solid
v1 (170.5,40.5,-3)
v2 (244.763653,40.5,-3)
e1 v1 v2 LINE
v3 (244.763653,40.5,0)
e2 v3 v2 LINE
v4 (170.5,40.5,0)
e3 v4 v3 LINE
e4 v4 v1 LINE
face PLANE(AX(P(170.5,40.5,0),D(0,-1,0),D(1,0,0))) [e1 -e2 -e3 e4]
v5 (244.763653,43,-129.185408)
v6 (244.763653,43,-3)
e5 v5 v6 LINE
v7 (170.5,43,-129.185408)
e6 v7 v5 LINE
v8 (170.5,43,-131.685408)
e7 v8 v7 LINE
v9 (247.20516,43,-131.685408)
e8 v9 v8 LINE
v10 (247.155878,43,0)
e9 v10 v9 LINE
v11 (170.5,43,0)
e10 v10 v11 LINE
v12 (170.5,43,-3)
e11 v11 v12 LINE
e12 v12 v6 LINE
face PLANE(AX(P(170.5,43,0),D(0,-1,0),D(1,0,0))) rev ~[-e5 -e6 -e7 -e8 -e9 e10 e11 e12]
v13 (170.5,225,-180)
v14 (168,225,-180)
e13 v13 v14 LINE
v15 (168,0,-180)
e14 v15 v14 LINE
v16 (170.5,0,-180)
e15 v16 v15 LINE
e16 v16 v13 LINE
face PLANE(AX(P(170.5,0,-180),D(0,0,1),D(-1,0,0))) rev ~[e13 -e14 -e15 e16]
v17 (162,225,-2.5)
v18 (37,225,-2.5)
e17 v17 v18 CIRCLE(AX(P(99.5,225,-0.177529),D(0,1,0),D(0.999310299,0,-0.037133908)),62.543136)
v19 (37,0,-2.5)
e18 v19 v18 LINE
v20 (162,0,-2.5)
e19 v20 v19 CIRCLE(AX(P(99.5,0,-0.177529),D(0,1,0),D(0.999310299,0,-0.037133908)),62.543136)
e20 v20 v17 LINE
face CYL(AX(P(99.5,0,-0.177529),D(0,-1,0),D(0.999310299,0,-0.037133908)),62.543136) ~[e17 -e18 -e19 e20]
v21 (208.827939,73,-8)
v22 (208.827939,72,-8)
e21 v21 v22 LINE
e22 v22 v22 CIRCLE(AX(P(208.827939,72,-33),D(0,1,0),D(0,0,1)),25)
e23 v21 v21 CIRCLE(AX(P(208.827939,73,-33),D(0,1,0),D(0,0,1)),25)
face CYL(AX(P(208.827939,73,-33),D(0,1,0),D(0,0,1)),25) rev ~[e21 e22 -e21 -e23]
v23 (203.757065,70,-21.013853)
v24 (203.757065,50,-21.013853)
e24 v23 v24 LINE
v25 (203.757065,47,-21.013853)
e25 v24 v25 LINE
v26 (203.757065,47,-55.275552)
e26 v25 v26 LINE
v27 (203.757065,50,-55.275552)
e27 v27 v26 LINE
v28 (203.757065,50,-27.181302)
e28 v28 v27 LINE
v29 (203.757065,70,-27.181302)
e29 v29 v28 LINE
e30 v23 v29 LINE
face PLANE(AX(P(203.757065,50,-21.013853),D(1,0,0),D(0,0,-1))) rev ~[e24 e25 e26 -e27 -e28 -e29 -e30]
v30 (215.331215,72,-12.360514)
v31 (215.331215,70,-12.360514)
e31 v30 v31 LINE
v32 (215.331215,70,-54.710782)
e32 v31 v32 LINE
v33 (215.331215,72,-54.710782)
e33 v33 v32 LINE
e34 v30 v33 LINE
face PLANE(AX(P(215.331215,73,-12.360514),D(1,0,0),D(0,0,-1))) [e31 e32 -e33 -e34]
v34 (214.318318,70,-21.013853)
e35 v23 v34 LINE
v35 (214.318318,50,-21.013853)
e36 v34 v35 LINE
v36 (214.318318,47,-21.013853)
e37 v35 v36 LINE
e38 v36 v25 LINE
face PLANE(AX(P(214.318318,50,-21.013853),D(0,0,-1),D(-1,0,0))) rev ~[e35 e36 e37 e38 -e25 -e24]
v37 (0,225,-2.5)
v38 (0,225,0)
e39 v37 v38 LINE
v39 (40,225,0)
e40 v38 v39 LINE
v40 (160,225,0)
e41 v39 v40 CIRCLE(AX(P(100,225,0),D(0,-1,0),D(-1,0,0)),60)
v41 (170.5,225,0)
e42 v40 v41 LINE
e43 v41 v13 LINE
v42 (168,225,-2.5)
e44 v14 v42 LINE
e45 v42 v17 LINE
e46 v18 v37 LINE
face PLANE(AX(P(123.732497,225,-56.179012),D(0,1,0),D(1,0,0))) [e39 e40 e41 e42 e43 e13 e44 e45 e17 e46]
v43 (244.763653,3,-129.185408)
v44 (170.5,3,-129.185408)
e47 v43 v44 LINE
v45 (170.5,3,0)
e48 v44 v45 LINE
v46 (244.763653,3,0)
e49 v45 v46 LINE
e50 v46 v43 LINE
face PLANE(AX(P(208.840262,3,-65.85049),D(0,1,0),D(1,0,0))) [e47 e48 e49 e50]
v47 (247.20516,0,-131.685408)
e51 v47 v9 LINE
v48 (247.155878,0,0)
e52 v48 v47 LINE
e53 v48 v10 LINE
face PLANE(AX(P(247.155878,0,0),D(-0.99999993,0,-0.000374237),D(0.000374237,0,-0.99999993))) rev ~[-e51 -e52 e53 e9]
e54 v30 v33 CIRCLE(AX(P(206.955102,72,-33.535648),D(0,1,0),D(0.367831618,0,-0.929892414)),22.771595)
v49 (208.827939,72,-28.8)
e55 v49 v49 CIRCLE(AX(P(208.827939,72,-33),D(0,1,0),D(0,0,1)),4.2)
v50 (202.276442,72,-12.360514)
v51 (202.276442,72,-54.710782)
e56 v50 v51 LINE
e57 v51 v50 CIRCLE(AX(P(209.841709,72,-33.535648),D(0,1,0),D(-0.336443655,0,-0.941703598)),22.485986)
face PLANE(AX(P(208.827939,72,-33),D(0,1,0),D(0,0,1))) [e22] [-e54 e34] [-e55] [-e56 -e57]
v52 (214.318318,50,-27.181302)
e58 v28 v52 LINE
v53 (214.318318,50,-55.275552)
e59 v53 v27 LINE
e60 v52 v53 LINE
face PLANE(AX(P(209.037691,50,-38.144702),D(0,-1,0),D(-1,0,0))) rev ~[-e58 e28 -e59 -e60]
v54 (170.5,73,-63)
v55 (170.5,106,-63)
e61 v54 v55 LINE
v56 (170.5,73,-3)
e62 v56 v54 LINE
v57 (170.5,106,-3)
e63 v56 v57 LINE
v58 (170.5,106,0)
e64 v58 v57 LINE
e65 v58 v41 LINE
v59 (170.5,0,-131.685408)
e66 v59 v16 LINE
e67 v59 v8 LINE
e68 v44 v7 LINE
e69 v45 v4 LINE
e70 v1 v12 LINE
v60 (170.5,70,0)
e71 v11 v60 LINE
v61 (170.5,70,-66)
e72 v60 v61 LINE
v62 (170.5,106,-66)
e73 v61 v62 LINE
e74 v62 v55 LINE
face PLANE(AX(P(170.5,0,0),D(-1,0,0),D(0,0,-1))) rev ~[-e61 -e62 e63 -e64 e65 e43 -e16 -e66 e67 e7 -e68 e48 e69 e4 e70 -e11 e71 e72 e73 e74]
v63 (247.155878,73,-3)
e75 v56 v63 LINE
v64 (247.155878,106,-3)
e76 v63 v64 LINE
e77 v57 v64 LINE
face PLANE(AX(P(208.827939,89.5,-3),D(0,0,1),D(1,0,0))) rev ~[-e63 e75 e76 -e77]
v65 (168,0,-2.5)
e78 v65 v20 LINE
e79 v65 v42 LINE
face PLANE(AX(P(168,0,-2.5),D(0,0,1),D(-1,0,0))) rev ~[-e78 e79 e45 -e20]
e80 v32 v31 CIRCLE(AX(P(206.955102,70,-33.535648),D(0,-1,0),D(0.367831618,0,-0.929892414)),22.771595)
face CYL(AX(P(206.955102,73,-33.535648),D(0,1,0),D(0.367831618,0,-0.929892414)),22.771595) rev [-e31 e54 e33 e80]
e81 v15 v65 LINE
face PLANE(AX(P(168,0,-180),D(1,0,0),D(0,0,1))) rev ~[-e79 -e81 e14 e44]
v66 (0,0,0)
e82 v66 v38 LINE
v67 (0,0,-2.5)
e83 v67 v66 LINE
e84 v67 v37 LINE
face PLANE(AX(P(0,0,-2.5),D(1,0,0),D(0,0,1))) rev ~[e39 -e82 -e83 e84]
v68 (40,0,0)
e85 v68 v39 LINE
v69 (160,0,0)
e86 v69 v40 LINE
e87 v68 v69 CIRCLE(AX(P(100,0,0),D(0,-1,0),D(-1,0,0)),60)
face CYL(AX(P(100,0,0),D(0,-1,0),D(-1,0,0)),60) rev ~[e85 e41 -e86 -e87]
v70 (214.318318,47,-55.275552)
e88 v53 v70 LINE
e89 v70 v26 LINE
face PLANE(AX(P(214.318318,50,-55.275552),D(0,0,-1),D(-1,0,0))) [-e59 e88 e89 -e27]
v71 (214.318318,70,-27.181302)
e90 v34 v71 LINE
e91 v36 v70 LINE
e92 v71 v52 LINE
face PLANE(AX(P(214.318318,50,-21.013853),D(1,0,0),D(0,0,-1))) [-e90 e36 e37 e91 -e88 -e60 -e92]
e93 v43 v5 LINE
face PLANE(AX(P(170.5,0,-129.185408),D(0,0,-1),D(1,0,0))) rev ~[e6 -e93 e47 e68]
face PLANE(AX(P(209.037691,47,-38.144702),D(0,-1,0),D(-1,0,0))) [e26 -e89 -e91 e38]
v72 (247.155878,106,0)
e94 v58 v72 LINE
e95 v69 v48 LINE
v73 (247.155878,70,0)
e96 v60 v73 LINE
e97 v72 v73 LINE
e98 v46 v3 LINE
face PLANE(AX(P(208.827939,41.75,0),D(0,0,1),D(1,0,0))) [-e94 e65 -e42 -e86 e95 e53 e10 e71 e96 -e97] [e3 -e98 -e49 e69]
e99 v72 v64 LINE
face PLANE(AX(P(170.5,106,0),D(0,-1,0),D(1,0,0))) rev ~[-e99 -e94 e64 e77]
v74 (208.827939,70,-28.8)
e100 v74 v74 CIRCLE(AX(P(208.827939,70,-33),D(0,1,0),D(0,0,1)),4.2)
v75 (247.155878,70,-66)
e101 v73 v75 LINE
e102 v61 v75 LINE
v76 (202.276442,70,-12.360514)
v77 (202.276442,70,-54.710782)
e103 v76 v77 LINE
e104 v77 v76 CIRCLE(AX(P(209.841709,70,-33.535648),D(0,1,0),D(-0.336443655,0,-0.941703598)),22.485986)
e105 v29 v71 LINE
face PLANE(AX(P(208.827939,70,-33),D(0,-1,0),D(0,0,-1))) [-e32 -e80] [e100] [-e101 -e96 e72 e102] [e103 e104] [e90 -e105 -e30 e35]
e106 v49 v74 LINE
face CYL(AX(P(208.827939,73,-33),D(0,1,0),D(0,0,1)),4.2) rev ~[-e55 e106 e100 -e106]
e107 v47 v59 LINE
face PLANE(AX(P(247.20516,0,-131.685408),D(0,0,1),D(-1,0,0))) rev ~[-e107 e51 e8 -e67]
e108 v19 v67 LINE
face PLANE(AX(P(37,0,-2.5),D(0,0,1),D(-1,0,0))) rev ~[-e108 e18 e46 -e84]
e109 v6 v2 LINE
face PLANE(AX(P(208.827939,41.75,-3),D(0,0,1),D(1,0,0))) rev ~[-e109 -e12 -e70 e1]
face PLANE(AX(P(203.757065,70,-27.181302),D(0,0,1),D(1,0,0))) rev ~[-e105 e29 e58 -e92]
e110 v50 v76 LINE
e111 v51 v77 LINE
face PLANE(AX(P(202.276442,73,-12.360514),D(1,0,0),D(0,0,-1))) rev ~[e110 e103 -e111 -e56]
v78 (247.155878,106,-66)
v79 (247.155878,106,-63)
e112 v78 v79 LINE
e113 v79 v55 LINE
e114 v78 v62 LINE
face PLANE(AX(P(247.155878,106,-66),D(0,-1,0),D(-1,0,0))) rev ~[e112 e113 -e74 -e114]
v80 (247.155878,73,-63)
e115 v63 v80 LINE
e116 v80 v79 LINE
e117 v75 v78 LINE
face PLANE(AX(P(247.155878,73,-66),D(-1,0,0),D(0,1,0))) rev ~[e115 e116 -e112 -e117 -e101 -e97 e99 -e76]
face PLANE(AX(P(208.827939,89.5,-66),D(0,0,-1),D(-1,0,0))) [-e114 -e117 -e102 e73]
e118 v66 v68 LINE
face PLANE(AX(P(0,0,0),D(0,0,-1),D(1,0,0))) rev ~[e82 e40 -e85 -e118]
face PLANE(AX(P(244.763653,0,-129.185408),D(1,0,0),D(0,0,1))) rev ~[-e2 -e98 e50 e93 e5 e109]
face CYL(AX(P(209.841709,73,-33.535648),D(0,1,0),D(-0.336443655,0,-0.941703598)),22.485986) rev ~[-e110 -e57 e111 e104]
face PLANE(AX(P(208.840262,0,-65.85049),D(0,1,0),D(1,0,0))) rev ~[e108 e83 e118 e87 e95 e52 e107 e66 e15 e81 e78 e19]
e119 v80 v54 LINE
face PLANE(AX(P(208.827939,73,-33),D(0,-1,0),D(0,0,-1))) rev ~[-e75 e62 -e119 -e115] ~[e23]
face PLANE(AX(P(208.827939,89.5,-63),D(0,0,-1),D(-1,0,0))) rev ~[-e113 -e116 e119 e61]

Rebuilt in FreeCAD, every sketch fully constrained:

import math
import FreeCAD as App
import Part
import Sketcher


def add_polygon(sketch, points):
    """Adds a closed chain of lines whose ends are joined by coincident constraints."""
    first, n = sketch.GeometryCount, len(points)
    for a, b in zip(points, points[1:] + points[:1]):
        sketch.addGeometry(Part.LineSegment(App.Vector(*a, 0), App.Vector(*b, 0)), False)
    for i in range(n):
        sketch.addConstraint(Sketcher.Constraint("Coincident", first + i, 2, first + (i + 1) % n, 1))

doc = App.newDocument("Part")
body = doc.addObject("PartDesign::Body", "Body")

# Sketch on XZ plane
sketch1 = body.newObject("Sketcher::SketchObject", "Sketch")
sketch1.AttachmentSupport = (doc.getObject("XZ_Plane"), [""])
sketch1.MapMode = "FlatFace"
sketch1.addGeometry([
    Part.LineSegment(App.Vector(0, 0, 0), App.Vector(40, 0, 0)),  # 0
    Part.ArcOfCircle(Part.Circle(App.Vector(100, 0, 0), App.Vector(0, 0, 1), 60), math.radians(180), math.radians(360)),  # 1
    Part.LineSegment(App.Vector(160, 0, 0), App.Vector(170.5, 0, 0)),  # 2
    Part.LineSegment(App.Vector(170.5, 0, 0), App.Vector(170.5, -180, 0)),  # 3
    Part.LineSegment(App.Vector(170.5, -180, 0), App.Vector(168, -180, 0)),  # 4
    Part.LineSegment(App.Vector(168, -180, 0), App.Vector(168, -2.5, 0)),  # 5
    Part.LineSegment(App.Vector(168, -2.5, 0), App.Vector(162, -2.5, 0)),  # 6
    Part.ArcOfCircle(Part.Circle(App.Vector(99.5, -0.2, 0), App.Vector(0, 0, 1), 62.5), math.radians(-178), math.radians(-2)),  # 7
    Part.LineSegment(App.Vector(37, -2.5, 0), App.Vector(0, -2.5, 0)),  # 8
    Part.LineSegment(App.Vector(0, -2.5, 0), App.Vector(0, 0, 0)),  # 9
], False)
sketch1.addConstraint([
    Sketcher.Constraint("Coincident", 0, 2, 1, 1),
    Sketcher.Constraint("Coincident", 1, 2, 2, 1),
    Sketcher.Constraint("Coincident", 2, 2, 3, 1),
    Sketcher.Constraint("Coincident", 3, 2, 4, 1),
    Sketcher.Constraint("Coincident", 4, 2, 5, 1),
    Sketcher.Constraint("Coincident", 5, 2, 6, 1),
    Sketcher.Constraint("Coincident", 6, 2, 7, 2),
    Sketcher.Constraint("Coincident", 7, 1, 8, 1),
    Sketcher.Constraint("Coincident", 8, 2, 9, 1),
    Sketcher.Constraint("Coincident", 9, 2, 0, 1),
    Sketcher.Constraint("Horizontal", 0),
    Sketcher.Constraint("Horizontal", 2),
    Sketcher.Constraint("Vertical", 3),
    Sketcher.Constraint("Horizontal", 4),
    Sketcher.Constraint("Vertical", 5),
    Sketcher.Constraint("Horizontal", 6),
    Sketcher.Constraint("Horizontal", 8),
    Sketcher.Constraint("Vertical", 9),
    Sketcher.Constraint("Coincident", 9, 2, -1, 1),
    Sketcher.Constraint("PointOnObject", 1, 3, -1),
    Sketcher.Constraint("PointOnObject", 1, 2, -1),
    Sketcher.Constraint("Horizontal", 6, 2, 7, 1),
    Sketcher.Constraint("Equal", 4, 9),
    Sketcher.Constraint("Radius", 1, 60.0),
    Sketcher.Constraint("DistanceX", 0, 1, 0, 2, 40.0),
    Sketcher.Constraint("DistanceX", 6, 2, 6, 1, 6.0),
    Sketcher.Constraint("DistanceX", 8, 2, 8, 1, 37.0),
    Sketcher.Constraint("DistanceY", 3, 2, 3, 1, 180.0),
    Sketcher.Constraint("DistanceX", 2, 1, 2, 2, 10.5),
    Sketcher.Constraint("DistanceX", 4, 2, 4, 1, 2.5),
    Sketcher.Constraint("Radius", 7, 62.543136),
])
pad1 = body.newObject("PartDesign::Pad", "Pad")
pad1.Profile = sketch1
pad1.Length = 225
pad1.Reversed = True

# Sketch on XZ plane
sketch2 = body.newObject("Sketcher::SketchObject", "Sketch001")
sketch2.AttachmentSupport = (doc.getObject("XZ_Plane"), [""])
sketch2.MapMode = "FlatFace"
sketch2.AttachmentOffset = App.Placement(App.Vector(0, 0, -70), App.Rotation())
add_polygon(sketch2, [(247, 0), (170, 0), (170, -66), (247, -66)])  # lines 0-3
sketch2.addConstraint([
    Sketcher.Constraint("Horizontal", 0),
    Sketcher.Constraint("Vertical", 1),
    Sketcher.Constraint("Horizontal", 2),
    Sketcher.Constraint("Vertical", 3),
    Sketcher.Constraint("PointOnObject", 0, 2, -1),
    Sketcher.Constraint("DistanceY", 1, 2, 1, 1, 66.0),
    Sketcher.Constraint("DistanceX", -1, 1, 0, 2, 170.5),
    Sketcher.Constraint("DistanceX", 0, 2, 0, 1, 76.655878),
])
pad2 = body.newObject("PartDesign::Pad", "Pad001")
pad2.Profile = sketch2
pad2.Length = 3
pad2.Reversed = True

# Sketch on XY plane
sketch3 = body.newObject("Sketcher::SketchObject", "Sketch002")
sketch3.AttachmentSupport = (doc.getObject("XY_Plane"), [""])
sketch3.MapMode = "FlatFace"
add_polygon(sketch3, [(170, 106), (170, 73), (247, 73), (247, 106)])  # lines 0-3
sketch3.addConstraint([
    Sketcher.Constraint("Vertical", 0),
    Sketcher.Constraint("Horizontal", 1),
    Sketcher.Constraint("Vertical", 2),
    Sketcher.Constraint("Horizontal", 3),
    Sketcher.Constraint("DistanceY", 0, 2, 0, 1, 33.0),
    Sketcher.Constraint("DistanceY", -1, 1, 0, 2, 73.0),
    Sketcher.Constraint("DistanceX", -1, 1, 0, 2, 170.5),
    Sketcher.Constraint("DistanceX", 1, 1, 1, 2, 76.655878),
])
pad3 = body.newObject("PartDesign::Pad", "Pad002")
pad3.Profile = sketch3
pad3.Length = 3
pad3.Reversed = True

# Sketch on XY plane
sketch4 = body.newObject("Sketcher::SketchObject", "Sketch003")
sketch4.AttachmentSupport = (doc.getObject("XY_Plane"), [""])
sketch4.MapMode = "FlatFace"
sketch4.AttachmentOffset = App.Placement(App.Vector(0, 0, -66), App.Rotation())
add_polygon(sketch4, [(247, 106), (247, 73), (170, 73), (170, 106)])  # lines 0-3
sketch4.addConstraint([
    Sketcher.Constraint("Vertical", 0),
    Sketcher.Constraint("Horizontal", 1),
    Sketcher.Constraint("Vertical", 2),
    Sketcher.Constraint("Horizontal", 3),
    Sketcher.Constraint("DistanceY", 0, 2, 0, 1, 33.0),
    Sketcher.Constraint("DistanceY", -1, 1, 0, 2, 73.0),
    Sketcher.Constraint("DistanceX", -1, 1, 1, 2, 170.5),
    Sketcher.Constraint("DistanceX", 1, 2, 1, 1, 76.655878),
])
pad4 = body.newObject("PartDesign::Pad", "Pad003")
pad4.Profile = sketch4
pad4.Length = 3

# Sketch on XZ plane
sketch5 = body.newObject("Sketcher::SketchObject", "Sketch004")
sketch5.AttachmentSupport = (doc.getObject("XZ_Plane"), [""])
sketch5.MapMode = "FlatFace"
sketch5.AttachmentOffset = App.Placement(App.Vector(0, 0, -73), App.Rotation())
sketch5.addGeometry(Part.Circle(App.Vector(209, -33, 0), App.Vector(0, 0, 1), 25), False)
sketch5.addConstraint([
    Sketcher.Constraint("Diameter", 0, 50.0),
    Sketcher.Constraint("DistanceY", 0, 3, -1, 1, 33.0),
    Sketcher.Constraint("DistanceX", -1, 1, 0, 3, 208.827939),
])
pocket1 = body.newObject("PartDesign::Pocket", "Pocket")
pocket1.Profile = sketch5
pocket1.Length = 1
pocket1.Reversed = True

# Sketch on XZ plane
sketch6 = body.newObject("Sketcher::SketchObject", "Sketch005")
sketch6.AttachmentSupport = (doc.getObject("XZ_Plane"), [""])
sketch6.MapMode = "FlatFace"
sketch6.AttachmentOffset = App.Placement(App.Vector(0, 0, -73), App.Rotation())
sketch6.addGeometry(Part.Circle(App.Vector(208.8, -33, 0), App.Vector(0, 0, 1), 4.2), False)
sketch6.addConstraint([
    Sketcher.Constraint("Diameter", 0, 8.4),
    Sketcher.Constraint("DistanceY", 0, 3, -1, 1, 33.0),
    Sketcher.Constraint("DistanceX", -1, 1, 0, 3, 208.827939),
])
pocket2 = body.newObject("PartDesign::Pocket", "Pocket001")
pocket2.Profile = sketch6
pocket2.Length = 3
pocket2.Reversed = True

# Sketch on XZ plane
sketch7 = body.newObject("Sketcher::SketchObject", "Sketch006")
sketch7.AttachmentSupport = (doc.getObject("XZ_Plane"), [""])
sketch7.MapMode = "FlatFace"
sketch7.AttachmentOffset = App.Placement(App.Vector(0, 0, -73), App.Rotation())
sketch7.addGeometry([
    Part.ArcOfCircle(Part.Circle(App.Vector(210, -34, 0), App.Vector(0, 0, 1), 22), math.radians(110), math.radians(250)),
    Part.LineSegment(App.Vector(202, -12, 0), App.Vector(202, -55, 0)),
    Part.ArcOfCircle(Part.Circle(App.Vector(207, -34, 0), App.Vector(0, 0, 1), 23), math.radians(-68), math.radians(68)),
    Part.LineSegment(App.Vector(215, -55, 0), App.Vector(215, -12, 0)),
], False)
sketch7.addConstraint([
    Sketcher.Constraint("Coincident", 0, 1, 1, 1),
    Sketcher.Constraint("Coincident", 1, 2, 0, 2),
    Sketcher.Constraint("Coincident", 2, 1, 3, 1),
    Sketcher.Constraint("Coincident", 3, 2, 2, 2),
    Sketcher.Constraint("Vertical", 1),
    Sketcher.Constraint("Vertical", 3),
    Sketcher.Constraint("Horizontal", 0, 3, 2, 3),
    Sketcher.Constraint("Horizontal", 1, 2, 2, 1),
    Sketcher.Constraint("Radius", 0, 22.485986),
    Sketcher.Constraint("Radius", 2, 22.771595),
    Sketcher.Constraint("DistanceY", 1, 2, 1, 1, 42.350268),
    Sketcher.Constraint("DistanceX", -1, 1, 0, 3, 209.841709),
    Sketcher.Constraint("DistanceY", 0, 3, -1, 1, 33.535648),
    Sketcher.Constraint("DistanceX", 0, 1, 2, 3, 4.678661),
])
pocket3 = body.newObject("PartDesign::Pocket", "Pocket002")
pocket3.Profile = sketch7
pocket3.Length = 3
pocket3.Reversed = True

# Sketch on XZ plane
sketch8 = body.newObject("Sketcher::SketchObject", "Sketch007")
sketch8.AttachmentSupport = (doc.getObject("XZ_Plane"), [""])
sketch8.MapMode = "FlatFace"
sketch8.AttachmentOffset = App.Placement(App.Vector(0, 0, -70), App.Rotation())
add_polygon(sketch8, [(214, -21), (204, -21), (204, -27), (214, -27)])  # lines 0-3
sketch8.addConstraint([
    Sketcher.Constraint("Horizontal", 0),
    Sketcher.Constraint("Vertical", 1),
    Sketcher.Constraint("Horizontal", 2),
    Sketcher.Constraint("Vertical", 3),
    Sketcher.Constraint("DistanceY", 1, 2, 1, 1, 6.167449),
    Sketcher.Constraint("DistanceY", 1, 2, -1, 1, 27.181302),
    Sketcher.Constraint("DistanceX", 0, 2, 0, 1, 10.561253),
    Sketcher.Constraint("DistanceX", -1, 1, 0, 2, 203.757065),
])
pad5 = body.newObject("PartDesign::Pad", "Pad004")
pad5.Profile = sketch8
pad5.Length = 20

# Sketch on XZ plane
sketch9 = body.newObject("Sketcher::SketchObject", "Sketch008")
sketch9.AttachmentSupport = (doc.getObject("XZ_Plane"), [""])
sketch9.MapMode = "FlatFace"
sketch9.AttachmentOffset = App.Placement(App.Vector(0, 0, -50), App.Rotation())
add_polygon(sketch9, [(214, -55), (214, -21), (204, -21), (204, -55)])  # lines 0-3
sketch9.addConstraint([
    Sketcher.Constraint("Vertical", 0),
    Sketcher.Constraint("Horizontal", 1),
    Sketcher.Constraint("Vertical", 2),
    Sketcher.Constraint("Horizontal", 3),
    Sketcher.Constraint("DistanceY", 0, 1, 0, 2, 34.2617),
    Sketcher.Constraint("DistanceX", 1, 2, 1, 1, 10.561253),
    Sketcher.Constraint("DistanceX", -1, 1, 0, 2, 214.318318),
    Sketcher.Constraint("DistanceY", 0, 2, -1, 1, 21.013853),
])
pad6 = body.newObject("PartDesign::Pad", "Pad005")
pad6.Profile = sketch9
pad6.Length = 3

# Sketch on XZ plane
sketch10 = body.newObject("Sketcher::SketchObject", "Sketch009")
sketch10.AttachmentSupport = (doc.getObject("XZ_Plane"), [""])
sketch10.MapMode = "FlatFace"
add_polygon(sketch10, [(170, 0), (247, 0), (247, -132), (170, -132)])  # lines 0-3
sketch10.addConstraint([
    Sketcher.Constraint("Horizontal", 0),
    Sketcher.Constraint("Horizontal", 2),
    Sketcher.Constraint("Vertical", 3),
    Sketcher.Constraint("PointOnObject", 0, 2, -1),
    Sketcher.Constraint("DistanceX", -1, 1, 2, 2, 170.5),
    Sketcher.Constraint("DistanceX", 0, 1, 0, 2, 76.655878),
    Sketcher.Constraint("DistanceX", 2, 2, 2, 1, 76.70516),
    Sketcher.Constraint("DistanceY", 3, 1, 3, 2, 131.685408),
])
pad7 = body.newObject("PartDesign::Pad", "Pad006")
pad7.Profile = sketch10
pad7.Length = 3
pad7.Reversed = True

# Sketch on XZ plane
sketch11 = body.newObject("Sketcher::SketchObject", "Sketch010")
sketch11.AttachmentSupport = (doc.getObject("XZ_Plane"), [""])
sketch11.MapMode = "FlatFace"
add_polygon(sketch11, [(247.2, 0), (247.2, -131.7), (170.5, -131.7), (170.5, -129.2), (244.8, -129.2), (244.8, 0)])  # lines 0-5
sketch11.addConstraint([
    Sketcher.Constraint("Horizontal", 1),
    Sketcher.Constraint("Vertical", 2),
    Sketcher.Constraint("Horizontal", 3),
    Sketcher.Constraint("Vertical", 4),
    Sketcher.Constraint("Horizontal", 5),
    Sketcher.Constraint("PointOnObject", 4, 2, -1),
    Sketcher.Constraint("DistanceY", 2, 1, 2, 2, 2.5),
    Sketcher.Constraint("DistanceX", -1, 1, 1, 2, 170.5),
    Sketcher.Constraint("DistanceX", 1, 2, 1, 1, 76.70516),
    Sketcher.Constraint("DistanceX", 3, 1, 3, 2, 74.263653),
    Sketcher.Constraint("DistanceX", 5, 1, 5, 2, 2.392225),
    Sketcher.Constraint("DistanceY", 4, 1, 4, 2, 129.185408),
])
pad8 = body.newObject("PartDesign::Pad", "Pad007")
pad8.Profile = sketch11
pad8.Length = 43
pad8.Reversed = True

# Sketch on XY plane
sketch12 = body.newObject("Sketcher::SketchObject", "Sketch011")
sketch12.AttachmentSupport = (doc.getObject("XY_Plane"), [""])
sketch12.MapMode = "FlatFace"
add_polygon(sketch12, [(170.5, 43), (170.5, 40.5), (247.2, 40.5), (247.2, 43)])  # lines 0-3
sketch12.addConstraint([
    Sketcher.Constraint("Vertical", 0),
    Sketcher.Constraint("Horizontal", 1),
    Sketcher.Constraint("Vertical", 2),
    Sketcher.Constraint("Horizontal", 3),
    Sketcher.Constraint("DistanceY", 0, 2, 0, 1, 2.5),
    Sketcher.Constraint("DistanceY", -1, 1, 2, 2, 43.0),
    Sketcher.Constraint("DistanceX", -1, 1, 0, 2, 170.5),
    Sketcher.Constraint("DistanceX", 1, 1, 1, 2, 76.655878),
])
pad9 = body.newObject("PartDesign::Pad", "Pad008")
pad9.Profile = sketch12
pad9.Length = 3
pad9.Reversed = True

doc.recompute()
